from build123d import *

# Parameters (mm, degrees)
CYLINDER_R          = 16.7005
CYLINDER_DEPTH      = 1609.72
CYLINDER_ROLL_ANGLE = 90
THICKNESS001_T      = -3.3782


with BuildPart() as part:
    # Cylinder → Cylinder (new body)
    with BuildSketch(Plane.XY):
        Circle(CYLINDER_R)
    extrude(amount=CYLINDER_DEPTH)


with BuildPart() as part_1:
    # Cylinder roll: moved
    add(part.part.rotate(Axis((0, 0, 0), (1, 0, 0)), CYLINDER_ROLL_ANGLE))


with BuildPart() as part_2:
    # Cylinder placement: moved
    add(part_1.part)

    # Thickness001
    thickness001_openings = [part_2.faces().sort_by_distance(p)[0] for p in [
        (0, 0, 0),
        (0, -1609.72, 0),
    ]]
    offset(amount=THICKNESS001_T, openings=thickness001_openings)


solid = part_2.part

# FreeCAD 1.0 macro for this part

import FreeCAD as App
import Part
import Sketcher
from FreeCAD import Vector
Q = App.Units.Quantity


def faces_at(feature, points):
    """Names of the faces that lie closest to the given points."""
    faces = feature.Shape.Faces
    near = lambda p: min(range(len(faces)), key=lambda i: faces[i].distToShape(Part.Vertex(*p))[0])
    return sorted({f"Face{near(p) + 1}" for p in points})

doc = App.newDocument("Part")
body = doc.addObject("PartDesign::Body", "Body")

# Sketch on XY plane
sketch1 = doc.addObject("Sketcher::SketchObject", "Sketch")
body.addObject(sketch1)
sketch1.AttachmentSupport = (doc.XY_Plane, [""])
sketch1.MapMode = "FlatFace"
sketch1.addGeometry(Part.Circle(Vector(0, 0, 0), Vector(0, 0, 1), 17), False)
sketch1.addConstraint([
    Sketcher.Constraint("Coincident", 0, 3, -1, 1),
    Sketcher.Constraint("Diameter", 0, Q("1.315 in")),
])
pad1 = doc.addObject("PartDesign::Pad", "Pad")
body.addObject(pad1)
pad1.Profile = sketch1
pad1.Length = 1609.72
body2 = doc.addObject("PartDesign::Body", "Body001")
doc.recompute()

body.Placement = App.Placement(Vector(0, 0, 0), App.Rotation(Vector(1, 0, 0), 90))
boolean = doc.addObject("PartDesign::Boolean", "Boolean")
body2.addObject(boolean)
boolean.Type = "Fuse"
boolean.addObjects([body])
doc.recompute()

thickness = doc.addObject("PartDesign::Thickness", "Thickness")
body2.addObject(thickness)
thickness.Base = (boolean, faces_at(boolean, [(0, 0, 0), (0, -1609.72, 0)]))
thickness.Value = Q("0.133 in")
thickness.Reversed = True
thickness.Join = "Arc"

doc.recompute()
